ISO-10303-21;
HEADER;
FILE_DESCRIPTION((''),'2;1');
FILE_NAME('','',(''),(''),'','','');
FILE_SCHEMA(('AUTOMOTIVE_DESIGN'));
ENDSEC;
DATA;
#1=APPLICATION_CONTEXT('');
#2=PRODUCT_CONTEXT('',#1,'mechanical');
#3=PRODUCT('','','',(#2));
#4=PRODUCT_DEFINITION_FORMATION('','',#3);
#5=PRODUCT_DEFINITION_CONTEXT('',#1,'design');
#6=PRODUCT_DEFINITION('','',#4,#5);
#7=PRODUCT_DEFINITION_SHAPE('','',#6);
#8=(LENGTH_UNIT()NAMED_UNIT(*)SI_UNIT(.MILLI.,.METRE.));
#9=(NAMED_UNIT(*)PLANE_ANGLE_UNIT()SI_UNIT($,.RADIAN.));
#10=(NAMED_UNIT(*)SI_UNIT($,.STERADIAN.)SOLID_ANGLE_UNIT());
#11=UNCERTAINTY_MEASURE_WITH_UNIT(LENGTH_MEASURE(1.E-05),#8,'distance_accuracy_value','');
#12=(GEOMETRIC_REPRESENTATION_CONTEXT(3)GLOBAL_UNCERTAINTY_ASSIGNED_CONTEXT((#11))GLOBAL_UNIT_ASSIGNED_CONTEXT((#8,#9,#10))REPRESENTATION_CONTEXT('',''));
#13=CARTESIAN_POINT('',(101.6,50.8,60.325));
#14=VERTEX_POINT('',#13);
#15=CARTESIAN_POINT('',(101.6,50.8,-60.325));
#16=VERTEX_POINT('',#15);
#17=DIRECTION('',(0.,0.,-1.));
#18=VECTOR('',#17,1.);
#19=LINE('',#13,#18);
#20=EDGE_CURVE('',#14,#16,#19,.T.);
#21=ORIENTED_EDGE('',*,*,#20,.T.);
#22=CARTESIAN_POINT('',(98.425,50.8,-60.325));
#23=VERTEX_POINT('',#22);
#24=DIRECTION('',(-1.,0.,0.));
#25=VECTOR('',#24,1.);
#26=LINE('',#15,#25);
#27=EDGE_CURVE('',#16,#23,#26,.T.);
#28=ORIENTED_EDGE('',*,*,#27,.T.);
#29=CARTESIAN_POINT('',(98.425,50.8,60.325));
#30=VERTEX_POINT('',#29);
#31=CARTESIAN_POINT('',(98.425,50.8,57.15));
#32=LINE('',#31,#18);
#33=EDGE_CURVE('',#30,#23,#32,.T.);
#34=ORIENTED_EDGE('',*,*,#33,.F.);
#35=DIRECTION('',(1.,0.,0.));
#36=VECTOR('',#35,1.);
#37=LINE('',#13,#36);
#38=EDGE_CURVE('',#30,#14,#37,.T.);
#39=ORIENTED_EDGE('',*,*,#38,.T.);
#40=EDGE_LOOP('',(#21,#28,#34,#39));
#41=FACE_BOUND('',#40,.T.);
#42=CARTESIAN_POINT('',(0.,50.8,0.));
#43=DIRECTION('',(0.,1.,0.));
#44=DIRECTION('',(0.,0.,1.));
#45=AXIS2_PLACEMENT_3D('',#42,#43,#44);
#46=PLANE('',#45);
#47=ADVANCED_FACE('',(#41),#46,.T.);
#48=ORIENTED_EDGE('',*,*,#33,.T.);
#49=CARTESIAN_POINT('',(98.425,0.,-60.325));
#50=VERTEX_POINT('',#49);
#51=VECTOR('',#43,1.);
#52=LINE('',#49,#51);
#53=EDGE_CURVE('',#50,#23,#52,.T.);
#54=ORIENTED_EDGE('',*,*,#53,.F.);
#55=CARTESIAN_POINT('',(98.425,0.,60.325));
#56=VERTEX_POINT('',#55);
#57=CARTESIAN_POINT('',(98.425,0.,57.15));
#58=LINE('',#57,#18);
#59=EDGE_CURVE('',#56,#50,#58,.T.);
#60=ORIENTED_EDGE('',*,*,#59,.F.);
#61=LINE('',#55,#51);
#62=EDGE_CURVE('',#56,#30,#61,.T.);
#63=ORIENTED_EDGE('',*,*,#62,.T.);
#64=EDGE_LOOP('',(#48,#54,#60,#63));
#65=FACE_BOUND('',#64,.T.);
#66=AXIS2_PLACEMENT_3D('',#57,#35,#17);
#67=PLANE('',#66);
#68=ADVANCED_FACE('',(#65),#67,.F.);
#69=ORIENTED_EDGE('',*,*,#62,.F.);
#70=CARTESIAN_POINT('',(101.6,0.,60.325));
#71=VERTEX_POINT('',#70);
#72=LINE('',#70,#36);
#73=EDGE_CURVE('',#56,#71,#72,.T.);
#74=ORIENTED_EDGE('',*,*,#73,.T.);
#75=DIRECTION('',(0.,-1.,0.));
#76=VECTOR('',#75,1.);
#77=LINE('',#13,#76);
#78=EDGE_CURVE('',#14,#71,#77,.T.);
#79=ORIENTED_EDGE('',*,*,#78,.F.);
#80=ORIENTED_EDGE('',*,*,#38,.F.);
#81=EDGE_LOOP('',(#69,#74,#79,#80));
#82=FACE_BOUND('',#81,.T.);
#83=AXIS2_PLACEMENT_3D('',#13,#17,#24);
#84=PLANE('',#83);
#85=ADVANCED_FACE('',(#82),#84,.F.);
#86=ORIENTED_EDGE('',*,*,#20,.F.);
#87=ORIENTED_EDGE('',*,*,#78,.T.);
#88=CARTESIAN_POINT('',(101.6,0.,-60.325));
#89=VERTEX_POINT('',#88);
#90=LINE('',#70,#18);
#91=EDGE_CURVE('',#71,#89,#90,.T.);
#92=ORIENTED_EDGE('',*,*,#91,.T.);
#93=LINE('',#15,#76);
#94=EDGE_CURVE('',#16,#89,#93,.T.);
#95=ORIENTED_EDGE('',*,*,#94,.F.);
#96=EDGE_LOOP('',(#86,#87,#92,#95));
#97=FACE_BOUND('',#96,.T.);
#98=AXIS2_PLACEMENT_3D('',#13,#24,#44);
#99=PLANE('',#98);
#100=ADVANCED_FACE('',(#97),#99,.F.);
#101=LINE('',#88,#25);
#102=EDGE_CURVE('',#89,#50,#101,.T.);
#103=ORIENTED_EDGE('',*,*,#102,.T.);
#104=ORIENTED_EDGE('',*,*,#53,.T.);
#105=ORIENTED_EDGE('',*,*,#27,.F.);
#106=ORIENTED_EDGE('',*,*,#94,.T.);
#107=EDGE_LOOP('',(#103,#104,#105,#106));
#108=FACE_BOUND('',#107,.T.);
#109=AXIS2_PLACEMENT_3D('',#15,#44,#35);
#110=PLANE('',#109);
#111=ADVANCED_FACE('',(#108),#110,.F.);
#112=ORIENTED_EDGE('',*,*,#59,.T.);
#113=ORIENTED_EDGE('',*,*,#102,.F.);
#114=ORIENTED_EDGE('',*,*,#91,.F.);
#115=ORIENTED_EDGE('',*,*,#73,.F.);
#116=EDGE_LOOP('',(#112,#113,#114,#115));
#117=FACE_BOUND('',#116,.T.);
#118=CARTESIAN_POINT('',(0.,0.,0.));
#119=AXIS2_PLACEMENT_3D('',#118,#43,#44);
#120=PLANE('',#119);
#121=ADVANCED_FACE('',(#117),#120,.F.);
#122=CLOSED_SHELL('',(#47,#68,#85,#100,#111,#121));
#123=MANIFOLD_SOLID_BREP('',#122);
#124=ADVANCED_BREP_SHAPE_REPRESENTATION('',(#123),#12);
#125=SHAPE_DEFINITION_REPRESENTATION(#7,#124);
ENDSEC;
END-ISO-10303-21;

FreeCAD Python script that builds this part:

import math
import FreeCAD as App
import Part
import Sketcher
from FreeCAD import Vector
Q = App.Units.Quantity

doc = App.newDocument("Part")
params = doc.addObject("Spreadsheet::Sheet", "Params")
for row, (alias, value) in enumerate([
    ("sketch1_width", "8 in"),
    ("sketch1_height", "4.75 in"),
    ("pad1_length", "2 in"),
    ("sketch2_height", "4.5 in"),
    ("sketch2_width", "7.75 in"),
    ("sketch3_width", "8 in"),
    ("sketch3_height", "4.5 in"),
    ("sketch3_width2", "7.75 in"),
    ("sketch3_height2", "4.75 in"),
    ("pad2_length", "0.25 in"),
    ("sketch8_height", "4.75 in"),
    ("sketch8_width", "7.875 in"),
    ("pad3_length", "0.125 in"),
], start=1):
    params.set(f"A{row}", alias)
    params.set(f"B{row}", "=" + value)
    params.setAlias(f"B{row}", alias)

body = doc.addObject("PartDesign::Body", "Body")

# Sketch on XZ plane
sketch1 = doc.addObject("Sketcher::SketchObject", "Sketch")
body.addObject(sketch1)
sketch1.AttachmentSupport = (doc.XZ_Plane, [""])
sketch1.MapMode = "FlatFace"
sketch1.addGeometry([
    Part.LineSegment(Vector(-102, -60, 0), Vector(-102, 60, 0)),
    Part.LineSegment(Vector(-102, 60, 0), Vector(102, 60, 0)),
    Part.LineSegment(Vector(102, 60, 0), Vector(102, -60, 0)),
    Part.LineSegment(Vector(102, -60, 0), Vector(-102, -60, 0)),
], False)
sketch1.addConstraint([
    Sketcher.Constraint("Coincident", 0, 2, 1, 1),
    Sketcher.Constraint("Coincident", 1, 2, 2, 1),
    Sketcher.Constraint("Coincident", 2, 2, 3, 1),
    Sketcher.Constraint("Coincident", 3, 2, 0, 1),
    Sketcher.Constraint("Vertical", 0),
    Sketcher.Constraint("Horizontal", 1),
    Sketcher.Constraint("Vertical", 2),
    Sketcher.Constraint("Horizontal", 3),
    Sketcher.Constraint("Symmetric", 0, 2, 2, 2, -1, 1),
    Sketcher.Constraint("DistanceX", 1, 1, 1, 2, Q("8 in")),
    Sketcher.Constraint("DistanceY", 0, 1, 0, 2, Q("4.75 in")),
])
sketch1.setExpression("Constraints[9]", "Params.sketch1_width")
sketch1.setExpression("Constraints[10]", "Params.sketch1_height")
pad1 = doc.addObject("PartDesign::Pad", "Pad")
body.addObject(pad1)
pad1.Profile = sketch1
pad1.setExpression("Length", "Params.pad1_length")
pad1.Reversed = True

# Sketch on XZ plane
sketch2 = doc.addObject("Sketcher::SketchObject", "Sketch001")
body.addObject(sketch2)
sketch2.AttachmentSupport = (doc.XZ_Plane, [""])
sketch2.MapMode = "FlatFace"
sketch2.AttachmentOffset = App.Placement(Vector(0, 0, -2 * 25.4), App.Rotation())
sketch2.addGeometry([
    Part.LineSegment(Vector(-98, -57, 0), Vector(-98, 57, 0)),
    Part.LineSegment(Vector(-98, 57, 0), Vector(98, 57, 0)),
    Part.LineSegment(Vector(98, 57, 0), Vector(98, -57, 0)),
    Part.LineSegment(Vector(98, -57, 0), Vector(-98, -57, 0)),
], False)
sketch2.addConstraint([
    Sketcher.Constraint("Coincident", 0, 2, 1, 1),
    Sketcher.Constraint("Coincident", 1, 2, 2, 1),
    Sketcher.Constraint("Coincident", 2, 2, 3, 1),
    Sketcher.Constraint("Coincident", 3, 2, 0, 1),
    Sketcher.Constraint("Vertical", 0),
    Sketcher.Constraint("Horizontal", 1),
    Sketcher.Constraint("Vertical", 2),
    Sketcher.Constraint("Horizontal", 3),
    Sketcher.Constraint("Symmetric", 0, 2, 2, 2, -1, 1),
    Sketcher.Constraint("DistanceY", 0, 1, 0, 2, Q("4.5 in")),
    Sketcher.Constraint("DistanceX", 1, 1, 1, 2, Q("7.75 in")),
])
sketch2.setExpression("Constraints[9]", "Params.sketch2_height")
sketch2.setExpression("Constraints[10]", "Params.sketch2_width")
pocket1 = doc.addObject("PartDesign::Pocket", "Pocket")
body.addObject(pocket1)
pocket1.Profile = sketch2
pocket1.Type = "ThroughAll"
pocket1.Reversed = True

# Sketch on XZ plane
sketch3 = doc.addObject("Sketcher::SketchObject", "Sketch002")
body.addObject(sketch3)
sketch3.AttachmentSupport = (doc.XZ_Plane, [""])
sketch3.MapMode = "FlatFace"
sketch3.AttachmentOffset = App.Placement(Vector(0, 0, -2 * 25.4), App.Rotation())
sketch3.addGeometry([
    Part.LineSegment(Vector(-102, -60, 0), Vector(-102, 60, 0)),  # 0
    Part.LineSegment(Vector(-102, 60, 0), Vector(102, 60, 0)),  # 1
    Part.LineSegment(Vector(102, 60, 0), Vector(102, -60, 0)),  # 2
    Part.LineSegment(Vector(102, -60, 0), Vector(-102, -60, 0)),  # 3
    Part.LineSegment(Vector(98, 57, 0), Vector(-98, 57, 0)),  # 4
    Part.LineSegment(Vector(-98, 57, 0), Vector(-98, -57, 0)),  # 5
    Part.LineSegment(Vector(-98, -57, 0), Vector(98, -57, 0)),  # 6
    Part.LineSegment(Vector(98, -57, 0), Vector(98, 57, 0)),  # 7
], False)
sketch3.addConstraint([
    Sketcher.Constraint("Coincident", 0, 2, 1, 1),
    Sketcher.Constraint("Coincident", 1, 2, 2, 1),
    Sketcher.Constraint("Coincident", 2, 2, 3, 1),
    Sketcher.Constraint("Coincident", 3, 2, 0, 1),
    Sketcher.Constraint("Coincident", 4, 2, 5, 1),
    Sketcher.Constraint("Coincident", 5, 2, 6, 1),
    Sketcher.Constraint("Coincident", 6, 2, 7, 1),
    Sketcher.Constraint("Coincident", 7, 2, 4, 1),
    Sketcher.Constraint("Vertical", 0),
    Sketcher.Constraint("Horizontal", 1),
    Sketcher.Constraint("Vertical", 2),
    Sketcher.Constraint("Horizontal", 3),
    Sketcher.Constraint("Horizontal", 4),
    Sketcher.Constraint("Vertical", 5),
    Sketcher.Constraint("Horizontal", 6),
    Sketcher.Constraint("Vertical", 7),
    Sketcher.Constraint("Symmetric", 0, 2, 2, 2, -1, 1),
    Sketcher.Constraint("Symmetric", 4, 2, 6, 2, -1, 1),
    Sketcher.Constraint("DistanceX", 1, 1, 1, 2, Q("8 in")),
    Sketcher.Constraint("DistanceY", 5, 2, 5, 1, Q("4.5 in")),
    Sketcher.Constraint("DistanceX", 4, 2, 4, 1, Q("7.75 in")),
    Sketcher.Constraint("DistanceY", 0, 1, 0, 2, Q("4.75 in")),
])
sketch3.setExpression("Constraints[18]", "Params.sketch3_width")
sketch3.setExpression("Constraints[19]", "Params.sketch3_height")
sketch3.setExpression("Constraints[20]", "Params.sketch3_width2")
sketch3.setExpression("Constraints[21]", "Params.sketch3_height2")
pad2 = doc.addObject("PartDesign::Pad", "Pad001")
body.addObject(pad2)
pad2.Profile = sketch3
pad2.setExpression("Length", "Params.pad2_length")

# Sketch on XY plane
sketch4 = doc.addObject("Sketcher::SketchObject", "Sketch003")
body.addObject(sketch4)
sketch4.AttachmentSupport = (doc.XY_Plane, [""])
sketch4.MapMode = "FlatFace"
sketch4.AttachmentOffset = App.Placement(Vector(0, 0, 2.375 * 25.4), App.Rotation())
sketch4.addGeometry([
    Part.ArcOfCircle(Part.Circle(Vector(-76, 22, 0), Vector(0, 0, 1), 10), math.radians(0), math.radians(238)),  # 0
    Part.LineSegment(Vector(-82, 13, 0), Vector(-71, 13, 0)),  # 1
    Part.ArcOfCircle(Part.Circle(Vector(-76, 22, 0), Vector(0, 0, 1), 10), math.radians(-58), math.radians(0)),  # 2
    Part.ArcOfCircle(Part.Circle(Vector(-25, 22, 0), Vector(0, 0, 1), 10), math.radians(0), math.radians(238)),  # 3
    Part.LineSegment(Vector(-31, 13, 0), Vector(-20, 13, 0)),  # 4
    Part.ArcOfCircle(Part.Circle(Vector(-25, 22, 0), Vector(0, 0, 1), 10), math.radians(-58), math.radians(0)),  # 5
    Part.ArcOfCircle(Part.Circle(Vector(25, 22, 0), Vector(0, 0, 1), 10), math.radians(0), math.radians(238)),  # 6
    Part.LineSegment(Vector(20, 13, 0), Vector(31, 13, 0)),  # 7
    Part.ArcOfCircle(Part.Circle(Vector(25, 22, 0), Vector(0, 0, 1), 10), math.radians(-58), math.radians(0)),  # 8
    Part.LineSegment(Vector(71, 13, 0), Vector(82, 13, 0)),  # 9
    Part.ArcOfCircle(Part.Circle(Vector(76, 22, 0), Vector(0, 0, 1), 10), math.radians(-58), math.radians(0)),  # 10
    Part.ArcOfCircle(Part.Circle(Vector(76, 22, 0), Vector(0, 0, 1), 10), math.radians(0), math.radians(238)),  # 11
], False)
sketch4.addConstraint([
    Sketcher.Constraint("Coincident", 0, 2, 1, 1),
    Sketcher.Constraint("Coincident", 1, 2, 2, 1),
    Sketcher.Constraint("Tangent", 2, 2, 0, 1),
    Sketcher.Constraint("Coincident", 3, 2, 4, 1),
    Sketcher.Constraint("Coincident", 4, 2, 5, 1),
    Sketcher.Constraint("Tangent", 5, 2, 3, 1),
    Sketcher.Constraint("Coincident", 6, 2, 7, 1),
    Sketcher.Constraint("Coincident", 7, 2, 8, 1),
    Sketcher.Constraint("Tangent", 8, 2, 6, 1),
    Sketcher.Constraint("Coincident", 9, 2, 10, 1),
    Sketcher.Constraint("Tangent", 10, 2, 11, 1),
    Sketcher.Constraint("Coincident", 11, 2, 9, 1),
    Sketcher.Constraint("Horizontal", 1),
    Sketcher.Constraint("Horizontal", 4),
    Sketcher.Constraint("Horizontal", 7),
    Sketcher.Constraint("Horizontal", 9),
    Sketcher.Constraint("Equal", 0, 2),
    Sketcher.Constraint("Equal", 2, 3),
    Sketcher.Constraint("Equal", 3, 5),
    Sketcher.Constraint("Equal", 5, 6),
    Sketcher.Constraint("Equal", 6, 8),
    Sketcher.Constraint("Equal", 8, 10),
    Sketcher.Constraint("Equal", 10, 11),
    Sketcher.Constraint("Symmetric", 3, 3, 6, 3, -2),
    Sketcher.Constraint("Symmetric", 0, 3, 10, 3, -2),
    Sketcher.Constraint("Horizontal", 2, 3, 3, 3),
    Sketcher.Constraint("Horizontal", 11, 3, 2, 2),
    Sketcher.Constraint("Horizontal", 1, 2, 3, 2),
    Sketcher.Constraint("Horizontal", 2, 2, 5, 2),
    Sketcher.Constraint("Horizontal", 4, 2, 6, 2),
    Sketcher.Constraint("Horizontal", 5, 2, 8, 2),
    Sketcher.Constraint("Horizontal", 7, 2, 9, 2),
    Sketcher.Constraint("Horizontal", 8, 2, 10, 2),
    Sketcher.Constraint("DistanceX", 0, 3, -1, 1, Q("3 in")),
    Sketcher.Constraint("DistanceX", 3, 3, -1, 1, Q("1 in")),
    Sketcher.Constraint("Radius", 0, Q("0.4035 in")),
    Sketcher.Constraint("DistanceY", -1, 1, 0, 3, Q("0.875 in")),
    Sketcher.Constraint("DistanceY", -1, 1, 0, 2, Q("0.531 in")),
])
pocket2 = doc.addObject("PartDesign::Pocket", "Pocket001")
body.addObject(pocket2)
pocket2.Profile = sketch4
pocket2.Type = "ThroughAll"

# Sketch on YZ plane
sketch5 = doc.addObject("Sketcher::SketchObject", "Sketch004")
body.addObject(sketch5)
sketch5.AttachmentSupport = (doc.YZ_Plane, [""])
sketch5.MapMode = "FlatFace"
sketch5.AttachmentOffset = App.Placement(Vector(0, 0, 4 * 25.4), App.Rotation())
sketch5.addGeometry([
    Part.ArcOfCircle(Part.Circle(Vector(29, 25, 0), Vector(0, 0, 1), 10), math.radians(-148), math.radians(148)),
    Part.LineSegment(Vector(20, 31, 0), Vector(20, 20, 0)),
], False)
sketch5.addConstraint([
    Sketcher.Constraint("Coincident", 0, 1, 1, 2),
    Sketcher.Constraint("Coincident", 1, 1, 0, 2),
    Sketcher.Constraint("Vertical", 1),
    Sketcher.Constraint("DistanceY", -1, 1, 0, 3, Q("1 in")),
    Sketcher.Constraint("Radius", 0, Q("0.4035 in")),
    Sketcher.Constraint("DistanceX", -1, 1, 0, 3, Q("1.125 in")),
    Sketcher.Constraint("DistanceX", -1, 1, 0, 1, Q("0.781 in")),
])
pocket3 = doc.addObject("PartDesign::Pocket", "Pocket002")
body.addObject(pocket3)
pocket3.Profile = sketch5
pocket3.Type = "UpToFirst"

# Sketch on YZ plane
sketch6 = doc.addObject("Sketcher::SketchObject", "Sketch005")
body.addObject(sketch6)
sketch6.AttachmentSupport = (doc.YZ_Plane, [""])
sketch6.MapMode = "FlatFace"
sketch6.AttachmentOffset = App.Placement(Vector(0, 0, 4 * 25.4), App.Rotation())
sketch6.addGeometry([
    Part.ArcOfCircle(Part.Circle(Vector(29, -25, 0), Vector(0, 0, 1), 10), math.radians(-148), math.radians(148)),
    Part.LineSegment(Vector(20, -20, 0), Vector(20, -31, 0)),
], False)
sketch6.addConstraint([
    Sketcher.Constraint("Coincident", 0, 1, 1, 2),
    Sketcher.Constraint("Coincident", 1, 1, 0, 2),
    Sketcher.Constraint("Vertical", 1),
    Sketcher.Constraint("DistanceY", 0, 3, -1, 1, Q("1 in")),
    Sketcher.Constraint("Radius", 0, Q("0.4035 in")),
    Sketcher.Constraint("DistanceX", -1, 1, 0, 3, Q("1.125 in")),
    Sketcher.Constraint("DistanceX", -1, 1, 0, 1, Q("0.781 in")),
])
pocket4 = doc.addObject("PartDesign::Pocket", "Pocket003")
body.addObject(pocket4)
pocket4.Profile = sketch6
pocket4.Type = "UpToFirst"

# Sketch on YZ plane
sketch7 = doc.addObject("Sketcher::SketchObject", "Sketch006")
body.addObject(sketch7)
sketch7.AttachmentSupport = (doc.YZ_Plane, [""])
sketch7.MapMode = "FlatFace"
sketch7.AttachmentOffset = App.Placement(Vector(0, 0, -4 * 25.4), App.Rotation())
sketch7.addGeometry(Part.Circle(Vector(29, 16, 0), Vector(0, 0, 1), 13), False)
sketch7.addConstraint([
    Sketcher.Constraint("Diameter", 0, Q("0.9885 in")),
    Sketcher.Constraint("DistanceX", -1, 1, 0, 3, Q("1.125 in")),
    Sketcher.Constraint("DistanceY", -1, 1, 0, 3, Q("0.625 in")),
])
pocket5 = doc.addObject("PartDesign::Pocket", "Pocket004")
body.addObject(pocket5)
pocket5.Profile = sketch7
pocket5.Type = "UpToFirst"
pocket5.Reversed = True

# Sketch on XZ plane
sketch8 = doc.addObject("Sketcher::SketchObject", "Sketch007")
body.addObject(sketch8)
sketch8.AttachmentSupport = (doc.XZ_Plane, [""])
sketch8.MapMode = "FlatFace"
sketch8.AttachmentOffset = App.Placement(Vector(0, 0, -2 * 25.4), App.Rotation())
sketch8.addGeometry([
    Part.LineSegment(Vector(-102, -60, 0), Vector(-102, 60, 0)),
    Part.LineSegment(Vector(-102, 60, 0), Vector(98, 60, 0)),
    Part.LineSegment(Vector(98, 60, 0), Vector(98, -60, 0)),
    Part.LineSegment(Vector(98, -60, 0), Vector(-102, -60, 0)),
], False)
sketch8.addConstraint([
    Sketcher.Constraint("Coincident", 0, 2, 1, 1),
    Sketcher.Constraint("Coincident", 1, 2, 2, 1),
    Sketcher.Constraint("Coincident", 2, 2, 3, 1),
    Sketcher.Constraint("Coincident", 3, 2, 0, 1),
    Sketcher.Constraint("Vertical", 0),
    Sketcher.Constraint("Horizontal", 1),
    Sketcher.Constraint("Vertical", 2),
    Sketcher.Constraint("Horizontal", 3),
    Sketcher.Constraint("DistanceX", 0, 2, -1, 1, Q("4 in")),
    Sketcher.Constraint("DistanceY", 0, 1, 0, 2, Q("4.75 in")),
    Sketcher.Constraint("DistanceX", 1, 1, 1, 2, Q("7.875 in")),
    Sketcher.Constraint("DistanceY", -1, 1, 0, 2, Q("2.375 in")),
])
sketch8.setExpression("Constraints[9]", "Params.sketch8_height")
sketch8.setExpression("Constraints[10]", "Params.sketch8_width")
pocket6 = doc.addObject("PartDesign::Pocket", "Pocket005")
body.addObject(pocket6)
pocket6.Profile = sketch8
pocket6.Type = "ThroughAll"
pocket6.Reversed = True

# Sketch on YZ plane
sketch9 = doc.addObject("Sketcher::SketchObject", "Sketch008")
body.addObject(sketch9)
sketch9.AttachmentSupport = (doc.YZ_Plane, [""])
sketch9.MapMode = "FlatFace"
sketch9.AttachmentOffset = App.Placement(Vector(0, 0, 4 * 25.4), App.Rotation())
sketch9.addGeometry([
    Part.LineSegment(Vector(20, -20, 0), Vector(20, -31, 0)),
    Part.ArcOfCircle(Part.Circle(Vector(29, -25, 0), Vector(0, 0, 1), 10), math.radians(-148), math.radians(148)),
    Part.LineSegment(Vector(20, 31, 0), Vector(20, 20, 0)),
    Part.ArcOfCircle(Part.Circle(Vector(29, 25, 0), Vector(0, 0, 1), 10), math.radians(-148), math.radians(148)),
], False)
sketch9.addConstraint([
    Sketcher.Constraint("Coincident", 0, 1, 1, 2),
    Sketcher.Constraint("Coincident", 1, 1, 0, 2),
    Sketcher.Constraint("Coincident", 2, 1, 3, 2),
    Sketcher.Constraint("Coincident", 3, 1, 2, 2),
    Sketcher.Constraint("Vertical", 0),
    Sketcher.Constraint("Vertical", 2),
    Sketcher.Constraint("Equal", 1, 3),
    Sketcher.Constraint("Symmetric", 1, 3, 3, 3, -1),
    Sketcher.Constraint("Vertical", 1, 1, 2, 1),
    Sketcher.Constraint("DistanceY", 1, 3, -1, 1, Q("1 in")),
    Sketcher.Constraint("Radius", 1, Q("0.4035 in")),
    Sketcher.Constraint("DistanceX", -1, 1, 1, 3, Q("1.125 in")),
    Sketcher.Constraint("DistanceX", -1, 1, 0, 1, Q("0.781 in")),
])
pad3 = doc.addObject("PartDesign::Pad", "Pad002")
body.addObject(pad3)
pad3.Profile = sketch9
pad3.setExpression("Length", "Params.pad3_length")
pad3.Reversed = True

doc.recompute()
